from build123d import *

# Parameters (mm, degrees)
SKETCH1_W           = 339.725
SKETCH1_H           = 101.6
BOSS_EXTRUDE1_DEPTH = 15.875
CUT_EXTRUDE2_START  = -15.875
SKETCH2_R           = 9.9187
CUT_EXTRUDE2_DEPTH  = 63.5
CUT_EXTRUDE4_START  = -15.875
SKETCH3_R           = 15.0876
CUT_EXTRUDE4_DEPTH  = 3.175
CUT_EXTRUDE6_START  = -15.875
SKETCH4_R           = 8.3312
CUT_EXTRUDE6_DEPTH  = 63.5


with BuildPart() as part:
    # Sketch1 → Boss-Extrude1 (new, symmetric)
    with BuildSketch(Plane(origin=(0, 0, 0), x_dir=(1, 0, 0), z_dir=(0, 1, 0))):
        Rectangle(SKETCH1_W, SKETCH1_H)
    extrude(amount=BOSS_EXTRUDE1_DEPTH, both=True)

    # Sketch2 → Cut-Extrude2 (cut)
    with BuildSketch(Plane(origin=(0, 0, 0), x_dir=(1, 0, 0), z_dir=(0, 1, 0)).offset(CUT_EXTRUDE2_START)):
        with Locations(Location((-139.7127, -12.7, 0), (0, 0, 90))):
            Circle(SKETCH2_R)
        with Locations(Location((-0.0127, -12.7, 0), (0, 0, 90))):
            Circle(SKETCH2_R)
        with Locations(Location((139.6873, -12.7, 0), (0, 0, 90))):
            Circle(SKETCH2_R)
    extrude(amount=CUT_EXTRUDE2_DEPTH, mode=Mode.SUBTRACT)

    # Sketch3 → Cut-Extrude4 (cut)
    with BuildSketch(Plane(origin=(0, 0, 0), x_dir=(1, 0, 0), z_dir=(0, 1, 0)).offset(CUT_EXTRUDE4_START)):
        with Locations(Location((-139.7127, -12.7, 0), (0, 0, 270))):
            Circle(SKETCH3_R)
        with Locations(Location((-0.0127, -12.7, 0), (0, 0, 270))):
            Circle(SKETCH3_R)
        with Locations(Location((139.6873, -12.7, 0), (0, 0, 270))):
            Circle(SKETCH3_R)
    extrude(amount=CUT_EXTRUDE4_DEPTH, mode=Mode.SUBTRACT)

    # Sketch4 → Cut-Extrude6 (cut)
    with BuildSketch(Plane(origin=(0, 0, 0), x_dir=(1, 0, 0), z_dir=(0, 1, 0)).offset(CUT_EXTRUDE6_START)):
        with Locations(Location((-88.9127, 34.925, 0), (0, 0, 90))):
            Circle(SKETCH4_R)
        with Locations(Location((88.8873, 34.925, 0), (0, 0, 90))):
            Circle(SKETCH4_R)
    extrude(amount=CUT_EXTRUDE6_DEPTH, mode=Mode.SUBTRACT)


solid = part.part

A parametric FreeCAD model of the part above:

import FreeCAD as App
import Part
import Sketcher
from FreeCAD import Vector
Q = App.Units.Quantity

doc = App.newDocument("Part")
body = doc.addObject("PartDesign::Body", "Body")

# Sketch on XZ plane
sketch1 = body.newObject("Sketcher::SketchObject", "Sketch")
sketch1.AttachmentSupport = (doc.getObject("XZ_Plane"), [""])
sketch1.MapMode = "FlatFace"
sketch1.addGeometry([
    Part.LineSegment(Vector(-169.8625, -50.8, 0), Vector(-169.8625, 50.8, 0)),
    Part.LineSegment(Vector(-169.8625, 50.8, 0), Vector(169.8625, 50.8, 0)),
    Part.LineSegment(Vector(169.8625, 50.8, 0), Vector(169.8625, -50.8, 0)),
    Part.LineSegment(Vector(169.8625, -50.8, 0), Vector(-169.8625, -50.8, 0)),
], False)
sketch1.addConstraint([
    Sketcher.Constraint("Coincident", 0, 2, 1, 1),
    Sketcher.Constraint("Coincident", 1, 2, 2, 1),
    Sketcher.Constraint("Coincident", 2, 2, 3, 1),
    Sketcher.Constraint("Coincident", 3, 2, 0, 1),
    Sketcher.Constraint("Vertical", 0),
    Sketcher.Constraint("Horizontal", 1),
    Sketcher.Constraint("Vertical", 2),
    Sketcher.Constraint("Horizontal", 3),
    Sketcher.Constraint("Symmetric", 0, 2, 2, 2, -1, 1),
    Sketcher.Constraint("DistanceY", 0, 1, 0, 2, Q("4 in")),
    Sketcher.Constraint("DistanceX", 1, 1, 1, 2, Q("13.375 in")),
])
pad1 = body.newObject("PartDesign::Pad", "Pad")
pad1.Profile = sketch1
pad1.Length = Q("1.25 in")
pad1.Midplane = True

# Sketch on XZ plane
sketch2 = body.newObject("Sketcher::SketchObject", "Sketch001")
sketch2.AttachmentSupport = (doc.getObject("XZ_Plane"), [""])
sketch2.MapMode = "FlatFace"
sketch2.AttachmentOffset = App.Placement(Vector(0, 0, 0.625 * 25.4), App.Rotation())
sketch2.addGeometry([
    Part.Circle(Vector(-139.7127, 12.7, 0), Vector(0, 0, 1), 9.9187),
    Part.Circle(Vector(-0.0127, 12.7, 0), Vector(0, 0, 1), 9.9187),
    Part.Circle(Vector(139.6873, 12.7, 0), Vector(0, 0, 1), 9.9187),
], False)
sketch2.addConstraint([
    Sketcher.Constraint("Equal", 0, 1),
    Sketcher.Constraint("Equal", 1, 2),
    Sketcher.Constraint("Horizontal", 0, 3, 1, 3),
    Sketcher.Constraint("Horizontal", 1, 3, 2, 3),
    Sketcher.Constraint("Diameter", 0, Q("0.781 in")),
    Sketcher.Constraint("DistanceX", 0, 3, 2, 3, Q("11 in")),
    Sketcher.Constraint("DistanceY", -1, 1, 0, 3, Q("0.5 in")),
    Sketcher.Constraint("DistanceX", 0, 3, 1, 3, Q("5.5 in")),
    Sketcher.Constraint("DistanceX", 0, 3, -1, 1, Q("5.5005 in")),
])
pocket1 = body.newObject("PartDesign::Pocket", "Pocket")
pocket1.Profile = sketch2
pocket1.Length = Q("2.5 in")

# Sketch on XZ plane
sketch3 = body.newObject("Sketcher::SketchObject", "Sketch002")
sketch3.AttachmentSupport = (doc.getObject("XZ_Plane"), [""])
sketch3.MapMode = "FlatFace"
sketch3.AttachmentOffset = App.Placement(Vector(0, 0, 0.625 * 25.4), App.Rotation())
sketch3.addGeometry([
    Part.Circle(Vector(-139.7127, 12.7, 0), Vector(0, 0, 1), 15.0876),
    Part.Circle(Vector(-0.0127, 12.7, 0), Vector(0, 0, 1), 15.0876),
    Part.Circle(Vector(139.6873, 12.7, 0), Vector(0, 0, 1), 15.0876),
], False)
sketch3.addConstraint([
    Sketcher.Constraint("Equal", 0, 1),
    Sketcher.Constraint("Equal", 1, 2),
    Sketcher.Constraint("Horizontal", 0, 3, 1, 3),
    Sketcher.Constraint("Horizontal", 1, 3, 2, 3),
    Sketcher.Constraint("Diameter", 0, Q("1.188 in")),
    Sketcher.Constraint("DistanceX", 0, 3, 2, 3, Q("11 in")),
    Sketcher.Constraint("DistanceY", -1, 1, 0, 3, Q("0.5 in")),
    Sketcher.Constraint("DistanceX", 0, 3, 1, 3, Q("5.5 in")),
    Sketcher.Constraint("DistanceX", 0, 3, -1, 1, Q("5.5005 in")),
])
pocket2 = body.newObject("PartDesign::Pocket", "Pocket001")
pocket2.Profile = sketch3
pocket2.Length = Q("0.125 in")

# Sketch on XZ plane
sketch4 = body.newObject("Sketcher::SketchObject", "Sketch003")
sketch4.AttachmentSupport = (doc.getObject("XZ_Plane"), [""])
sketch4.MapMode = "FlatFace"
sketch4.AttachmentOffset = App.Placement(Vector(0, 0, 0.625 * 25.4), App.Rotation())
sketch4.addGeometry([
    Part.Circle(Vector(-88.9127, -34.925, 0), Vector(0, 0, 1), 8.3312),
    Part.Circle(Vector(88.8873, -34.925, 0), Vector(0, 0, 1), 8.3312),
], False)
sketch4.addConstraint([
    Sketcher.Constraint("Equal", 0, 1),
    Sketcher.Constraint("Horizontal", 0, 3, 1, 3),
    Sketcher.Constraint("Diameter", 0, Q("0.656 in")),
    Sketcher.Constraint("DistanceX", 0, 3, 1, 3, Q("7 in")),
    Sketcher.Constraint("DistanceY", 0, 3, -1, 1, Q("1.375 in")),
    Sketcher.Constraint("DistanceX", 0, 3, -1, 1, Q("3.5005 in")),
])
pocket3 = body.newObject("PartDesign::Pocket", "Pocket002")
pocket3.Profile = sketch4
pocket3.Length = Q("2.5 in")

doc.recompute()
